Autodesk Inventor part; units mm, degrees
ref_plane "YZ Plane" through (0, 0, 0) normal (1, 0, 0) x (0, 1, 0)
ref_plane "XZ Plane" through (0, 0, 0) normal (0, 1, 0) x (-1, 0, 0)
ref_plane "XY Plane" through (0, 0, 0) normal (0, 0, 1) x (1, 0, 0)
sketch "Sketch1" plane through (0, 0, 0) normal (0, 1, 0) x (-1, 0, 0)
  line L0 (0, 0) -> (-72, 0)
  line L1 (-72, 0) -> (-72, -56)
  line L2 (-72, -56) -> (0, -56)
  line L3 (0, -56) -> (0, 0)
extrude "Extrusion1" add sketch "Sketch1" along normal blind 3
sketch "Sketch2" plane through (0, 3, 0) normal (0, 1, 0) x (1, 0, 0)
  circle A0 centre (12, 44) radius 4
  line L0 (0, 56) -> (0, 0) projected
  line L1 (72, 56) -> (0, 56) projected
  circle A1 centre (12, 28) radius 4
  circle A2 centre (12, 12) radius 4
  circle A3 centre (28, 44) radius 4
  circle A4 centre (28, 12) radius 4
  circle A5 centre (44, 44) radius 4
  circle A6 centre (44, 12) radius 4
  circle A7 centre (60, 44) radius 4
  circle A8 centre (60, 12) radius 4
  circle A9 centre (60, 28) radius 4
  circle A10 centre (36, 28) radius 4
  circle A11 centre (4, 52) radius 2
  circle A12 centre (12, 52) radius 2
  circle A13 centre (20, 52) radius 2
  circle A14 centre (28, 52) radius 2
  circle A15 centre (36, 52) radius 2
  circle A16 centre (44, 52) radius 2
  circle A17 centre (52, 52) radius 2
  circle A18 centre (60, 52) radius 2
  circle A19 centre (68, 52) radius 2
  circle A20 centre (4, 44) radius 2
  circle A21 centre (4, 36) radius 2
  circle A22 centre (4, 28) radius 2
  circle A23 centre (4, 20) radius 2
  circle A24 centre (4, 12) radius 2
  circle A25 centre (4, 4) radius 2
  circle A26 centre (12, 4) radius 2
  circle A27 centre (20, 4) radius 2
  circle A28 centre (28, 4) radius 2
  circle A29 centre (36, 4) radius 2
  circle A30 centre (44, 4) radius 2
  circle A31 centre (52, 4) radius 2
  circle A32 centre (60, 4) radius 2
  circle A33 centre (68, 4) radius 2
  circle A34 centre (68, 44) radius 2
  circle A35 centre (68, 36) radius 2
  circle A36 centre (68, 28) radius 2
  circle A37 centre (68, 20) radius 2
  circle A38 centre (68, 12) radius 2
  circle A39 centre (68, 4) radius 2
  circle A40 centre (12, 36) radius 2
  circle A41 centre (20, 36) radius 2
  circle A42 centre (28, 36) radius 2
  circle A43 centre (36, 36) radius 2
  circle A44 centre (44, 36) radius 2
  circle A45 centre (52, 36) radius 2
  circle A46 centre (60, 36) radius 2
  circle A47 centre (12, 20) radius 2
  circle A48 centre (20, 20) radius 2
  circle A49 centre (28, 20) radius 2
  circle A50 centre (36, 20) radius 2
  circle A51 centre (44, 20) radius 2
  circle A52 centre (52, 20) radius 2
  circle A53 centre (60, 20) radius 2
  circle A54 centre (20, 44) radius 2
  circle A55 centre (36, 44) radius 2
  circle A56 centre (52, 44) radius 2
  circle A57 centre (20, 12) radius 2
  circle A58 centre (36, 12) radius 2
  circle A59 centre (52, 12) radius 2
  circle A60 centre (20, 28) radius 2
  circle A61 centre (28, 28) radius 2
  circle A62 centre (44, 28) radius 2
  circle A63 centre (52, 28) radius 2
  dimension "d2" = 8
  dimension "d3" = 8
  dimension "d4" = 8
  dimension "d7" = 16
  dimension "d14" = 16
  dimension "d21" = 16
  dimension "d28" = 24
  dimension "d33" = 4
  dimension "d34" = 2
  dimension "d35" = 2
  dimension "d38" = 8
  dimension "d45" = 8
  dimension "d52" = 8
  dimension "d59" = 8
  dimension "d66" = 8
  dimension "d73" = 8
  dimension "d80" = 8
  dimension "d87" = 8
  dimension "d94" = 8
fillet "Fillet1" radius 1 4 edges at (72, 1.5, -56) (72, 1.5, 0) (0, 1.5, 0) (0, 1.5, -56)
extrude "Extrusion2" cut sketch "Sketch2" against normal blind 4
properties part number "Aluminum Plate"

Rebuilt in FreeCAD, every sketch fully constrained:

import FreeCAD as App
import Part
import Sketcher

V = App.Vector


def edges_at(feature, points):
    """Names of the edges that pass closest to the given points."""
    edges = feature.Shape.Edges
    near = lambda p: min(range(len(edges)), key=lambda i: edges[i].distToShape(Part.Vertex(*p))[0])
    return sorted({f"Edge{near(p) + 1}" for p in points})

doc = App.newDocument("Part")
body = doc.addObject("PartDesign::Body", "Body")

# Sketch on XZ plane
sketch1 = body.newObject("Sketcher::SketchObject", "Sketch")
sketch1.AttachmentSupport = (doc.getObject("XZ_Plane"), [""])
sketch1.MapMode = "FlatFace"
sketch1.addGeometry(Part.LineSegment(V(0, -56, 0), V(0, 0, 0)), False)
sketch1.addGeometry(Part.LineSegment(V(0, 0, 0), V(72, 0, 0)), False)
sketch1.addGeometry(Part.LineSegment(V(72, 0, 0), V(72, -56, 0)), False)
sketch1.addGeometry(Part.LineSegment(V(72, -56, 0), V(0, -56, 0)), False)
sketch1.addConstraint(Sketcher.Constraint("Coincident", 0, 2, 1, 1))
sketch1.addConstraint(Sketcher.Constraint("Coincident", 1, 2, 2, 1))
sketch1.addConstraint(Sketcher.Constraint("Coincident", 2, 2, 3, 1))
sketch1.addConstraint(Sketcher.Constraint("Coincident", 3, 2, 0, 1))
sketch1.addConstraint(Sketcher.Constraint("Vertical", 0))
sketch1.addConstraint(Sketcher.Constraint("Horizontal", 1))
sketch1.addConstraint(Sketcher.Constraint("Vertical", 2))
sketch1.addConstraint(Sketcher.Constraint("Horizontal", 3))
sketch1.addConstraint(Sketcher.Constraint("Coincident", 0, 2, -1, 1))
sketch1.addConstraint(Sketcher.Constraint("DistanceX", 1, 1, 1, 2, 72.0))
sketch1.addConstraint(Sketcher.Constraint("DistanceY", 0, 1, 0, 2, 56.0))
pad1 = body.newObject("PartDesign::Pad", "Pad")
pad1.Profile = sketch1
pad1.Length = 3
pad1.Reversed = True
doc.recompute()

fillet = body.newObject("PartDesign::Fillet", "Fillet")
fillet.Base = (pad1, edges_at(pad1, [
    (72, 1.5, -56),
    (72, 1.5, 0),
    (0, 1.5, 0),
    (0, 1.5, -56),
]))
fillet.Radius = 1

# Sketch on XZ plane
sketch2 = body.newObject("Sketcher::SketchObject", "Sketch001")
sketch2.AttachmentSupport = (doc.getObject("XZ_Plane"), [""])
sketch2.MapMode = "FlatFace"
sketch2.AttachmentOffset = App.Placement(V(0, 0, -3), App.Rotation())
sketch2.addGeometry(Part.Circle(V(12, -44, 0), V(0, 0, 1), 4), False)
sketch2.addGeometry(Part.Circle(V(12, -28, 0), V(0, 0, 1), 4), False)
sketch2.addGeometry(Part.Circle(V(12, -12, 0), V(0, 0, 1), 4), False)
sketch2.addGeometry(Part.Circle(V(28, -44, 0), V(0, 0, 1), 4), False)
sketch2.addGeometry(Part.Circle(V(28, -12, 0), V(0, 0, 1), 4), False)
sketch2.addGeometry(Part.Circle(V(44, -44, 0), V(0, 0, 1), 4), False)
sketch2.addGeometry(Part.Circle(V(44, -12, 0), V(0, 0, 1), 4), False)
sketch2.addGeometry(Part.Circle(V(60, -44, 0), V(0, 0, 1), 4), False)
sketch2.addGeometry(Part.Circle(V(60, -12, 0), V(0, 0, 1), 4), False)
sketch2.addGeometry(Part.Circle(V(60, -28, 0), V(0, 0, 1), 4), False)
sketch2.addGeometry(Part.Circle(V(36, -28, 0), V(0, 0, 1), 4), False)
sketch2.addGeometry(Part.Circle(V(4, -52, 0), V(0, 0, 1), 2), False)
sketch2.addGeometry(Part.Circle(V(12, -52, 0), V(0, 0, 1), 2), False)
sketch2.addGeometry(Part.Circle(V(20, -52, 0), V(0, 0, 1), 2), False)
sketch2.addGeometry(Part.Circle(V(28, -52, 0), V(0, 0, 1), 2), False)
sketch2.addGeometry(Part.Circle(V(36, -52, 0), V(0, 0, 1), 2), False)
sketch2.addGeometry(Part.Circle(V(44, -52, 0), V(0, 0, 1), 2), False)
sketch2.addGeometry(Part.Circle(V(52, -52, 0), V(0, 0, 1), 2), False)
sketch2.addGeometry(Part.Circle(V(60, -52, 0), V(0, 0, 1), 2), False)
sketch2.addGeometry(Part.Circle(V(68, -52, 0), V(0, 0, 1), 2), False)
sketch2.addGeometry(Part.Circle(V(4, -44, 0), V(0, 0, 1), 2), False)
sketch2.addGeometry(Part.Circle(V(4, -36, 0), V(0, 0, 1), 2), False)
sketch2.addGeometry(Part.Circle(V(4, -28, 0), V(0, 0, 1), 2), False)
sketch2.addGeometry(Part.Circle(V(4, -20, 0), V(0, 0, 1), 2), False)
sketch2.addGeometry(Part.Circle(V(4, -12, 0), V(0, 0, 1), 2), False)
sketch2.addGeometry(Part.Circle(V(4, -4, 0), V(0, 0, 1), 2), False)
sketch2.addGeometry(Part.Circle(V(12, -4, 0), V(0, 0, 1), 2), False)
sketch2.addGeometry(Part.Circle(V(20, -4, 0), V(0, 0, 1), 2), False)
sketch2.addGeometry(Part.Circle(V(28, -4, 0), V(0, 0, 1), 2), False)
sketch2.addGeometry(Part.Circle(V(36, -4, 0), V(0, 0, 1), 2), False)
sketch2.addGeometry(Part.Circle(V(44, -4, 0), V(0, 0, 1), 2), False)
sketch2.addGeometry(Part.Circle(V(52, -4, 0), V(0, 0, 1), 2), False)
sketch2.addGeometry(Part.Circle(V(60, -4, 0), V(0, 0, 1), 2), False)
sketch2.addGeometry(Part.Circle(V(68, -4, 0), V(0, 0, 1), 2), False)
sketch2.addGeometry(Part.Circle(V(68, -44, 0), V(0, 0, 1), 2), False)
sketch2.addGeometry(Part.Circle(V(68, -36, 0), V(0, 0, 1), 2), False)
sketch2.addGeometry(Part.Circle(V(68, -28, 0), V(0, 0, 1), 2), False)
sketch2.addGeometry(Part.Circle(V(68, -20, 0), V(0, 0, 1), 2), False)
sketch2.addGeometry(Part.Circle(V(68, -12, 0), V(0, 0, 1), 2), False)
sketch2.addGeometry(Part.Circle(V(12, -36, 0), V(0, 0, 1), 2), False)
sketch2.addGeometry(Part.Circle(V(20, -36, 0), V(0, 0, 1), 2), False)
sketch2.addGeometry(Part.Circle(V(28, -36, 0), V(0, 0, 1), 2), False)
sketch2.addGeometry(Part.Circle(V(36, -36, 0), V(0, 0, 1), 2), False)
sketch2.addGeometry(Part.Circle(V(44, -36, 0), V(0, 0, 1), 2), False)
sketch2.addGeometry(Part.Circle(V(52, -36, 0), V(0, 0, 1), 2), False)
sketch2.addGeometry(Part.Circle(V(60, -36, 0), V(0, 0, 1), 2), False)
sketch2.addGeometry(Part.Circle(V(12, -20, 0), V(0, 0, 1), 2), False)
sketch2.addGeometry(Part.Circle(V(20, -20, 0), V(0, 0, 1), 2), False)
sketch2.addGeometry(Part.Circle(V(28, -20, 0), V(0, 0, 1), 2), False)
sketch2.addGeometry(Part.Circle(V(36, -20, 0), V(0, 0, 1), 2), False)
sketch2.addGeometry(Part.Circle(V(44, -20, 0), V(0, 0, 1), 2), False)
sketch2.addGeometry(Part.Circle(V(52, -20, 0), V(0, 0, 1), 2), False)
sketch2.addGeometry(Part.Circle(V(60, -20, 0), V(0, 0, 1), 2), False)
sketch2.addGeometry(Part.Circle(V(20, -44, 0), V(0, 0, 1), 2), False)
sketch2.addGeometry(Part.Circle(V(36, -44, 0), V(0, 0, 1), 2), False)
sketch2.addGeometry(Part.Circle(V(52, -44, 0), V(0, 0, 1), 2), False)
sketch2.addGeometry(Part.Circle(V(20, -12, 0), V(0, 0, 1), 2), False)
sketch2.addGeometry(Part.Circle(V(36, -12, 0), V(0, 0, 1), 2), False)
sketch2.addGeometry(Part.Circle(V(52, -12, 0), V(0, 0, 1), 2), False)
sketch2.addGeometry(Part.Circle(V(20, -28, 0), V(0, 0, 1), 2), False)
sketch2.addGeometry(Part.Circle(V(28, -28, 0), V(0, 0, 1), 2), False)
sketch2.addGeometry(Part.Circle(V(44, -28, 0), V(0, 0, 1), 2), False)
sketch2.addGeometry(Part.Circle(V(52, -28, 0), V(0, 0, 1), 2), False)
sketch2.addConstraint(Sketcher.Constraint("Equal", 0, 1))
sketch2.addConstraint(Sketcher.Constraint("Equal", 1, 2))
sketch2.addConstraint(Sketcher.Constraint("Equal", 2, 3))
sketch2.addConstraint(Sketcher.Constraint("Equal", 3, 4))
sketch2.addConstraint(Sketcher.Constraint("Equal", 4, 5))
sketch2.addConstraint(Sketcher.Constraint("Equal", 5, 6))
sketch2.addConstraint(Sketcher.Constraint("Equal", 6, 7))
sketch2.addConstraint(Sketcher.Constraint("Equal", 7, 8))
sketch2.addConstraint(Sketcher.Constraint("Equal", 8, 9))
sketch2.addConstraint(Sketcher.Constraint("Equal", 9, 10))
sketch2.addConstraint(Sketcher.Constraint("Equal", 11, 12))
sketch2.addConstraint(Sketcher.Constraint("Equal", 12, 13))
sketch2.addConstraint(Sketcher.Constraint("Equal", 13, 14))
sketch2.addConstraint(Sketcher.Constraint("Equal", 14, 15))
sketch2.addConstraint(Sketcher.Constraint("Equal", 15, 16))
sketch2.addConstraint(Sketcher.Constraint("Equal", 16, 17))
sketch2.addConstraint(Sketcher.Constraint("Equal", 17, 18))
sketch2.addConstraint(Sketcher.Constraint("Equal", 18, 19))
sketch2.addConstraint(Sketcher.Constraint("Equal", 19, 20))
sketch2.addConstraint(Sketcher.Constraint("Equal", 20, 21))
sketch2.addConstraint(Sketcher.Constraint("Equal", 21, 22))
sketch2.addConstraint(Sketcher.Constraint("Equal", 22, 23))
sketch2.addConstraint(Sketcher.Constraint("Equal", 23, 24))
sketch2.addConstraint(Sketcher.Constraint("Equal", 24, 25))
sketch2.addConstraint(Sketcher.Constraint("Equal", 25, 26))
sketch2.addConstraint(Sketcher.Constraint("Equal", 26, 27))
sketch2.addConstraint(Sketcher.Constraint("Equal", 27, 28))
sketch2.addConstraint(Sketcher.Constraint("Equal", 28, 29))
sketch2.addConstraint(Sketcher.Constraint("Equal", 29, 30))
sketch2.addConstraint(Sketcher.Constraint("Equal", 30, 31))
sketch2.addConstraint(Sketcher.Constraint("Equal", 31, 32))
sketch2.addConstraint(Sketcher.Constraint("Equal", 32, 33))
sketch2.addConstraint(Sketcher.Constraint("Equal", 33, 34))
sketch2.addConstraint(Sketcher.Constraint("Equal", 34, 35))
sketch2.addConstraint(Sketcher.Constraint("Equal", 35, 36))
sketch2.addConstraint(Sketcher.Constraint("Equal", 36, 37))
sketch2.addConstraint(Sketcher.Constraint("Equal", 37, 38))
sketch2.addConstraint(Sketcher.Constraint("Equal", 38, 39))
sketch2.addConstraint(Sketcher.Constraint("Equal", 39, 40))
sketch2.addConstraint(Sketcher.Constraint("Equal", 40, 41))
sketch2.addConstraint(Sketcher.Constraint("Equal", 41, 42))
sketch2.addConstraint(Sketcher.Constraint("Equal", 42, 43))
sketch2.addConstraint(Sketcher.Constraint("Equal", 43, 44))
sketch2.addConstraint(Sketcher.Constraint("Equal", 44, 45))
sketch2.addConstraint(Sketcher.Constraint("Equal", 45, 46))
sketch2.addConstraint(Sketcher.Constraint("Equal", 46, 47))
sketch2.addConstraint(Sketcher.Constraint("Equal", 47, 48))
sketch2.addConstraint(Sketcher.Constraint("Equal", 48, 49))
sketch2.addConstraint(Sketcher.Constraint("Equal", 49, 50))
sketch2.addConstraint(Sketcher.Constraint("Equal", 50, 51))
sketch2.addConstraint(Sketcher.Constraint("Equal", 51, 52))
sketch2.addConstraint(Sketcher.Constraint("Equal", 52, 53))
sketch2.addConstraint(Sketcher.Constraint("Equal", 53, 54))
sketch2.addConstraint(Sketcher.Constraint("Equal", 54, 55))
sketch2.addConstraint(Sketcher.Constraint("Equal", 55, 56))
sketch2.addConstraint(Sketcher.Constraint("Equal", 56, 57))
sketch2.addConstraint(Sketcher.Constraint("Equal", 57, 58))
sketch2.addConstraint(Sketcher.Constraint("Equal", 58, 59))
sketch2.addConstraint(Sketcher.Constraint("Equal", 59, 60))
sketch2.addConstraint(Sketcher.Constraint("Equal", 60, 61))
sketch2.addConstraint(Sketcher.Constraint("Equal", 61, 62))
sketch2.addConstraint(Sketcher.Constraint("Horizontal", 0, 3, 3, 3))
sketch2.addConstraint(Sketcher.Constraint("Horizontal", 2, 3, 4, 3))
sketch2.addConstraint(Sketcher.Constraint("Horizontal", 3, 3, 5, 3))
sketch2.addConstraint(Sketcher.Constraint("Horizontal", 4, 3, 6, 3))
sketch2.addConstraint(Sketcher.Constraint("Horizontal", 5, 3, 7, 3))
sketch2.addConstraint(Sketcher.Constraint("Horizontal", 6, 3, 8, 3))
sketch2.addConstraint(Sketcher.Constraint("Horizontal", 1, 3, 9, 3))
sketch2.addConstraint(Sketcher.Constraint("Horizontal", 9, 3, 10, 3))
sketch2.addConstraint(Sketcher.Constraint("Horizontal", 11, 3, 12, 3))
sketch2.addConstraint(Sketcher.Constraint("Horizontal", 12, 3, 13, 3))
sketch2.addConstraint(Sketcher.Constraint("Horizontal", 13, 3, 14, 3))
sketch2.addConstraint(Sketcher.Constraint("Horizontal", 14, 3, 15, 3))
sketch2.addConstraint(Sketcher.Constraint("Horizontal", 15, 3, 16, 3))
sketch2.addConstraint(Sketcher.Constraint("Horizontal", 16, 3, 17, 3))
sketch2.addConstraint(Sketcher.Constraint("Horizontal", 17, 3, 18, 3))
sketch2.addConstraint(Sketcher.Constraint("Horizontal", 18, 3, 19, 3))
sketch2.addConstraint(Sketcher.Constraint("Horizontal", 7, 3, 20, 3))
sketch2.addConstraint(Sketcher.Constraint("Horizontal", 10, 3, 22, 3))
sketch2.addConstraint(Sketcher.Constraint("Horizontal", 8, 3, 24, 3))
sketch2.addConstraint(Sketcher.Constraint("Horizontal", 25, 3, 26, 3))
sketch2.addConstraint(Sketcher.Constraint("Horizontal", 26, 3, 27, 3))
sketch2.addConstraint(Sketcher.Constraint("Horizontal", 27, 3, 28, 3))
sketch2.addConstraint(Sketcher.Constraint("Horizontal", 28, 3, 29, 3))
sketch2.addConstraint(Sketcher.Constraint("Horizontal", 29, 3, 30, 3))
sketch2.addConstraint(Sketcher.Constraint("Horizontal", 30, 3, 31, 3))
sketch2.addConstraint(Sketcher.Constraint("Horizontal", 31, 3, 32, 3))
sketch2.addConstraint(Sketcher.Constraint("Horizontal", 32, 3, 33, 3))
sketch2.addConstraint(Sketcher.Constraint("Horizontal", 20, 3, 34, 3))
sketch2.addConstraint(Sketcher.Constraint("Horizontal", 21, 3, 35, 3))
sketch2.addConstraint(Sketcher.Constraint("Horizontal", 22, 3, 36, 3))
sketch2.addConstraint(Sketcher.Constraint("Horizontal", 23, 3, 37, 3))
sketch2.addConstraint(Sketcher.Constraint("Horizontal", 24, 3, 38, 3))
sketch2.addConstraint(Sketcher.Constraint("Horizontal", 35, 3, 39, 3))
sketch2.addConstraint(Sketcher.Constraint("Horizontal", 39, 3, 40, 3))
sketch2.addConstraint(Sketcher.Constraint("Horizontal", 40, 3, 41, 3))
sketch2.addConstraint(Sketcher.Constraint("Horizontal", 41, 3, 42, 3))
sketch2.addConstraint(Sketcher.Constraint("Horizontal", 42, 3, 43, 3))
sketch2.addConstraint(Sketcher.Constraint("Horizontal", 43, 3, 44, 3))
sketch2.addConstraint(Sketcher.Constraint("Horizontal", 44, 3, 45, 3))
sketch2.addConstraint(Sketcher.Constraint("Horizontal", 37, 3, 46, 3))
sketch2.addConstraint(Sketcher.Constraint("Horizontal", 46, 3, 47, 3))
sketch2.addConstraint(Sketcher.Constraint("Horizontal", 47, 3, 48, 3))
sketch2.addConstraint(Sketcher.Constraint("Horizontal", 48, 3, 49, 3))
sketch2.addConstraint(Sketcher.Constraint("Horizontal", 49, 3, 50, 3))
sketch2.addConstraint(Sketcher.Constraint("Horizontal", 50, 3, 51, 3))
sketch2.addConstraint(Sketcher.Constraint("Horizontal", 51, 3, 52, 3))
sketch2.addConstraint(Sketcher.Constraint("Horizontal", 34, 3, 53, 3))
sketch2.addConstraint(Sketcher.Constraint("Horizontal", 53, 3, 54, 3))
sketch2.addConstraint(Sketcher.Constraint("Horizontal", 54, 3, 55, 3))
sketch2.addConstraint(Sketcher.Constraint("Horizontal", 38, 3, 56, 3))
sketch2.addConstraint(Sketcher.Constraint("Horizontal", 56, 3, 57, 3))
sketch2.addConstraint(Sketcher.Constraint("Horizontal", 57, 3, 58, 3))
sketch2.addConstraint(Sketcher.Constraint("Horizontal", 36, 3, 59, 3))
sketch2.addConstraint(Sketcher.Constraint("Horizontal", 59, 3, 60, 3))
sketch2.addConstraint(Sketcher.Constraint("Horizontal", 60, 3, 61, 3))
sketch2.addConstraint(Sketcher.Constraint("Horizontal", 61, 3, 62, 3))
sketch2.addConstraint(Sketcher.Constraint("Vertical", 0, 3, 1, 3))
sketch2.addConstraint(Sketcher.Constraint("Vertical", 1, 3, 2, 3))
sketch2.addConstraint(Sketcher.Constraint("Vertical", 3, 3, 4, 3))
sketch2.addConstraint(Sketcher.Constraint("Vertical", 5, 3, 6, 3))
sketch2.addConstraint(Sketcher.Constraint("Vertical", 7, 3, 8, 3))
sketch2.addConstraint(Sketcher.Constraint("Vertical", 8, 3, 9, 3))
sketch2.addConstraint(Sketcher.Constraint("Vertical", 2, 3, 12, 3))
sketch2.addConstraint(Sketcher.Constraint("Vertical", 4, 3, 14, 3))
sketch2.addConstraint(Sketcher.Constraint("Vertical", 10, 3, 15, 3))
sketch2.addConstraint(Sketcher.Constraint("Vertical", 6, 3, 16, 3))
sketch2.addConstraint(Sketcher.Constraint("Vertical", 9, 3, 18, 3))
sketch2.addConstraint(Sketcher.Constraint("Vertical", 11, 3, 20, 3))
sketch2.addConstraint(Sketcher.Constraint("Vertical", 20, 3, 21, 3))
sketch2.addConstraint(Sketcher.Constraint("Vertical", 21, 3, 22, 3))
sketch2.addConstraint(Sketcher.Constraint("Vertical", 22, 3, 23, 3))
sketch2.addConstraint(Sketcher.Constraint("Vertical", 23, 3, 24, 3))
sketch2.addConstraint(Sketcher.Constraint("Vertical", 24, 3, 25, 3))
sketch2.addConstraint(Sketcher.Constraint("Vertical", 12, 3, 26, 3))
sketch2.addConstraint(Sketcher.Constraint("Vertical", 13, 3, 27, 3))
sketch2.addConstraint(Sketcher.Constraint("Vertical", 14, 3, 28, 3))
sketch2.addConstraint(Sketcher.Constraint("Vertical", 15, 3, 29, 3))
sketch2.addConstraint(Sketcher.Constraint("Vertical", 16, 3, 30, 3))
sketch2.addConstraint(Sketcher.Constraint("Vertical", 17, 3, 31, 3))
sketch2.addConstraint(Sketcher.Constraint("Vertical", 18, 3, 32, 3))
sketch2.addConstraint(Sketcher.Constraint("Vertical", 19, 3, 33, 3))
sketch2.addConstraint(Sketcher.Constraint("Vertical", 33, 3, 34, 3))
sketch2.addConstraint(Sketcher.Constraint("Vertical", 34, 3, 35, 3))
sketch2.addConstraint(Sketcher.Constraint("Vertical", 35, 3, 36, 3))
sketch2.addConstraint(Sketcher.Constraint("Vertical", 36, 3, 37, 3))
sketch2.addConstraint(Sketcher.Constraint("Vertical", 37, 3, 38, 3))
sketch2.addConstraint(Sketcher.Constraint("Vertical", 26, 3, 39, 3))
sketch2.addConstraint(Sketcher.Constraint("Vertical", 27, 3, 40, 3))
sketch2.addConstraint(Sketcher.Constraint("Vertical", 28, 3, 41, 3))
sketch2.addConstraint(Sketcher.Constraint("Vertical", 29, 3, 42, 3))
sketch2.addConstraint(Sketcher.Constraint("Vertical", 30, 3, 43, 3))
sketch2.addConstraint(Sketcher.Constraint("Vertical", 31, 3, 44, 3))
sketch2.addConstraint(Sketcher.Constraint("Vertical", 32, 3, 45, 3))
sketch2.addConstraint(Sketcher.Constraint("Vertical", 39, 3, 46, 3))
sketch2.addConstraint(Sketcher.Constraint("Vertical", 40, 3, 47, 3))
sketch2.addConstraint(Sketcher.Constraint("Vertical", 41, 3, 48, 3))
sketch2.addConstraint(Sketcher.Constraint("Vertical", 42, 3, 49, 3))
sketch2.addConstraint(Sketcher.Constraint("Vertical", 43, 3, 50, 3))
sketch2.addConstraint(Sketcher.Constraint("Vertical", 44, 3, 51, 3))
sketch2.addConstraint(Sketcher.Constraint("Vertical", 45, 3, 52, 3))
sketch2.addConstraint(Sketcher.Constraint("Vertical", 47, 3, 53, 3))
sketch2.addConstraint(Sketcher.Constraint("Vertical", 49, 3, 54, 3))
sketch2.addConstraint(Sketcher.Constraint("Vertical", 51, 3, 55, 3))
sketch2.addConstraint(Sketcher.Constraint("Vertical", 53, 3, 56, 3))
sketch2.addConstraint(Sketcher.Constraint("Vertical", 54, 3, 57, 3))
sketch2.addConstraint(Sketcher.Constraint("Vertical", 55, 3, 58, 3))
sketch2.addConstraint(Sketcher.Constraint("Vertical", 56, 3, 59, 3))
sketch2.addConstraint(Sketcher.Constraint("Vertical", 48, 3, 60, 3))
sketch2.addConstraint(Sketcher.Constraint("Vertical", 50, 3, 61, 3))
sketch2.addConstraint(Sketcher.Constraint("Vertical", 58, 3, 62, 3))
sketch2.addConstraint(Sketcher.Constraint("Diameter", 0, 8.0))
sketch2.addConstraint(Sketcher.Constraint("Diameter", 11, 4.0))
sketch2.addConstraint(Sketcher.Constraint("DistanceX", -1, 1, 11, 3, 4.0))
sketch2.addConstraint(Sketcher.Constraint("DistanceY", 25, 3, -1, 1, 4.0))
sketch2.addConstraint(Sketcher.Constraint("DistanceX", -1, 1, 0, 3, 12.0))
sketch2.addConstraint(Sketcher.Constraint("DistanceY", 0, 3, -1, 1, 44.0))
sketch2.addConstraint(Sketcher.Constraint("DistanceY", 1, 3, -1, 1, 28.0))
sketch2.addConstraint(Sketcher.Constraint("DistanceY", 2, 3, -1, 1, 12.0))
sketch2.addConstraint(Sketcher.Constraint("DistanceX", -1, 1, 3, 3, 28.0))
sketch2.addConstraint(Sketcher.Constraint("DistanceX", -1, 1, 5, 3, 44.0))
sketch2.addConstraint(Sketcher.Constraint("DistanceX", -1, 1, 7, 3, 60.0))
sketch2.addConstraint(Sketcher.Constraint("DistanceX", -1, 1, 10, 3, 36.0))
sketch2.addConstraint(Sketcher.Constraint("DistanceY", 11, 3, -1, 1, 52.0))
sketch2.addConstraint(Sketcher.Constraint("DistanceX", -1, 1, 13, 3, 20.0))
sketch2.addConstraint(Sketcher.Constraint("DistanceX", -1, 1, 17, 3, 52.0))
sketch2.addConstraint(Sketcher.Constraint("DistanceX", -1, 1, 19, 3, 68.0))
sketch2.addConstraint(Sketcher.Constraint("DistanceY", 21, 3, -1, 1, 36.0))
sketch2.addConstraint(Sketcher.Constraint("DistanceY", 23, 3, -1, 1, 20.0))
pocket1 = body.newObject("PartDesign::Pocket", "Pocket")
pocket1.Profile = sketch2
pocket1.Length = 4
pocket1.Reversed = True

doc.recompute()
